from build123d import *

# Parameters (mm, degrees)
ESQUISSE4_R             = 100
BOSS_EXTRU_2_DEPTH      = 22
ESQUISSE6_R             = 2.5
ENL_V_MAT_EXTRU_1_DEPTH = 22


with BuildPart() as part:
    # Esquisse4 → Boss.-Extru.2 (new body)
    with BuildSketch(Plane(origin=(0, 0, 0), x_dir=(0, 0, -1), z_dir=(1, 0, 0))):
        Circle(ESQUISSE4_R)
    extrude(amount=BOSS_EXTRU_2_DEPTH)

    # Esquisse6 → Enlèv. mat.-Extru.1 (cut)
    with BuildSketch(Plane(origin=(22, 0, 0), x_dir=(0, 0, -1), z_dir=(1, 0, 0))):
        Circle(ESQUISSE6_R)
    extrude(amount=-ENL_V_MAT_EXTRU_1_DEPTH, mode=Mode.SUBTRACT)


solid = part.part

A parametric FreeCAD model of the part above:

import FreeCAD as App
import Part
import Sketcher
Q = App.Units.Quantity

doc = App.newDocument("Part")
body = doc.addObject("PartDesign::Body", "Body")

# Sketch on YZ plane
sketch1 = body.newObject("Sketcher::SketchObject", "Sketch")
sketch1.AttachmentSupport = (doc.getObject("YZ_Plane"), [""])
sketch1.MapMode = "FlatFace"
sketch1.addGeometry(Part.Circle(App.Vector(0, 0, 0), App.Vector(0, 0, 1), 100), False)
sketch1.addConstraint(Sketcher.Constraint("Coincident", 0, 3, -1, 1))
sketch1.addConstraint(Sketcher.Constraint("Diameter", 0, Q("200 mm")))
pad1 = body.newObject("PartDesign::Pad", "Pad")
pad1.Profile = sketch1
pad1.Length = 22

# Sketch on YZ plane
sketch2 = body.newObject("Sketcher::SketchObject", "Sketch001")
sketch2.AttachmentSupport = (doc.getObject("YZ_Plane"), [""])
sketch2.MapMode = "FlatFace"
sketch2.AttachmentOffset = App.Placement(App.Vector(0, 0, 22), App.Rotation())
sketch2.addGeometry(Part.Circle(App.Vector(0, 0, 0), App.Vector(0, 0, 1), 2.5), False)
sketch2.addConstraint(Sketcher.Constraint("Coincident", 0, 3, -1, 1))
sketch2.addConstraint(Sketcher.Constraint("Diameter", 0, Q("5 mm")))
pocket1 = body.newObject("PartDesign::Pocket", "Pocket")
pocket1.Profile = sketch2
pocket1.Length = 22

doc.recompute()
